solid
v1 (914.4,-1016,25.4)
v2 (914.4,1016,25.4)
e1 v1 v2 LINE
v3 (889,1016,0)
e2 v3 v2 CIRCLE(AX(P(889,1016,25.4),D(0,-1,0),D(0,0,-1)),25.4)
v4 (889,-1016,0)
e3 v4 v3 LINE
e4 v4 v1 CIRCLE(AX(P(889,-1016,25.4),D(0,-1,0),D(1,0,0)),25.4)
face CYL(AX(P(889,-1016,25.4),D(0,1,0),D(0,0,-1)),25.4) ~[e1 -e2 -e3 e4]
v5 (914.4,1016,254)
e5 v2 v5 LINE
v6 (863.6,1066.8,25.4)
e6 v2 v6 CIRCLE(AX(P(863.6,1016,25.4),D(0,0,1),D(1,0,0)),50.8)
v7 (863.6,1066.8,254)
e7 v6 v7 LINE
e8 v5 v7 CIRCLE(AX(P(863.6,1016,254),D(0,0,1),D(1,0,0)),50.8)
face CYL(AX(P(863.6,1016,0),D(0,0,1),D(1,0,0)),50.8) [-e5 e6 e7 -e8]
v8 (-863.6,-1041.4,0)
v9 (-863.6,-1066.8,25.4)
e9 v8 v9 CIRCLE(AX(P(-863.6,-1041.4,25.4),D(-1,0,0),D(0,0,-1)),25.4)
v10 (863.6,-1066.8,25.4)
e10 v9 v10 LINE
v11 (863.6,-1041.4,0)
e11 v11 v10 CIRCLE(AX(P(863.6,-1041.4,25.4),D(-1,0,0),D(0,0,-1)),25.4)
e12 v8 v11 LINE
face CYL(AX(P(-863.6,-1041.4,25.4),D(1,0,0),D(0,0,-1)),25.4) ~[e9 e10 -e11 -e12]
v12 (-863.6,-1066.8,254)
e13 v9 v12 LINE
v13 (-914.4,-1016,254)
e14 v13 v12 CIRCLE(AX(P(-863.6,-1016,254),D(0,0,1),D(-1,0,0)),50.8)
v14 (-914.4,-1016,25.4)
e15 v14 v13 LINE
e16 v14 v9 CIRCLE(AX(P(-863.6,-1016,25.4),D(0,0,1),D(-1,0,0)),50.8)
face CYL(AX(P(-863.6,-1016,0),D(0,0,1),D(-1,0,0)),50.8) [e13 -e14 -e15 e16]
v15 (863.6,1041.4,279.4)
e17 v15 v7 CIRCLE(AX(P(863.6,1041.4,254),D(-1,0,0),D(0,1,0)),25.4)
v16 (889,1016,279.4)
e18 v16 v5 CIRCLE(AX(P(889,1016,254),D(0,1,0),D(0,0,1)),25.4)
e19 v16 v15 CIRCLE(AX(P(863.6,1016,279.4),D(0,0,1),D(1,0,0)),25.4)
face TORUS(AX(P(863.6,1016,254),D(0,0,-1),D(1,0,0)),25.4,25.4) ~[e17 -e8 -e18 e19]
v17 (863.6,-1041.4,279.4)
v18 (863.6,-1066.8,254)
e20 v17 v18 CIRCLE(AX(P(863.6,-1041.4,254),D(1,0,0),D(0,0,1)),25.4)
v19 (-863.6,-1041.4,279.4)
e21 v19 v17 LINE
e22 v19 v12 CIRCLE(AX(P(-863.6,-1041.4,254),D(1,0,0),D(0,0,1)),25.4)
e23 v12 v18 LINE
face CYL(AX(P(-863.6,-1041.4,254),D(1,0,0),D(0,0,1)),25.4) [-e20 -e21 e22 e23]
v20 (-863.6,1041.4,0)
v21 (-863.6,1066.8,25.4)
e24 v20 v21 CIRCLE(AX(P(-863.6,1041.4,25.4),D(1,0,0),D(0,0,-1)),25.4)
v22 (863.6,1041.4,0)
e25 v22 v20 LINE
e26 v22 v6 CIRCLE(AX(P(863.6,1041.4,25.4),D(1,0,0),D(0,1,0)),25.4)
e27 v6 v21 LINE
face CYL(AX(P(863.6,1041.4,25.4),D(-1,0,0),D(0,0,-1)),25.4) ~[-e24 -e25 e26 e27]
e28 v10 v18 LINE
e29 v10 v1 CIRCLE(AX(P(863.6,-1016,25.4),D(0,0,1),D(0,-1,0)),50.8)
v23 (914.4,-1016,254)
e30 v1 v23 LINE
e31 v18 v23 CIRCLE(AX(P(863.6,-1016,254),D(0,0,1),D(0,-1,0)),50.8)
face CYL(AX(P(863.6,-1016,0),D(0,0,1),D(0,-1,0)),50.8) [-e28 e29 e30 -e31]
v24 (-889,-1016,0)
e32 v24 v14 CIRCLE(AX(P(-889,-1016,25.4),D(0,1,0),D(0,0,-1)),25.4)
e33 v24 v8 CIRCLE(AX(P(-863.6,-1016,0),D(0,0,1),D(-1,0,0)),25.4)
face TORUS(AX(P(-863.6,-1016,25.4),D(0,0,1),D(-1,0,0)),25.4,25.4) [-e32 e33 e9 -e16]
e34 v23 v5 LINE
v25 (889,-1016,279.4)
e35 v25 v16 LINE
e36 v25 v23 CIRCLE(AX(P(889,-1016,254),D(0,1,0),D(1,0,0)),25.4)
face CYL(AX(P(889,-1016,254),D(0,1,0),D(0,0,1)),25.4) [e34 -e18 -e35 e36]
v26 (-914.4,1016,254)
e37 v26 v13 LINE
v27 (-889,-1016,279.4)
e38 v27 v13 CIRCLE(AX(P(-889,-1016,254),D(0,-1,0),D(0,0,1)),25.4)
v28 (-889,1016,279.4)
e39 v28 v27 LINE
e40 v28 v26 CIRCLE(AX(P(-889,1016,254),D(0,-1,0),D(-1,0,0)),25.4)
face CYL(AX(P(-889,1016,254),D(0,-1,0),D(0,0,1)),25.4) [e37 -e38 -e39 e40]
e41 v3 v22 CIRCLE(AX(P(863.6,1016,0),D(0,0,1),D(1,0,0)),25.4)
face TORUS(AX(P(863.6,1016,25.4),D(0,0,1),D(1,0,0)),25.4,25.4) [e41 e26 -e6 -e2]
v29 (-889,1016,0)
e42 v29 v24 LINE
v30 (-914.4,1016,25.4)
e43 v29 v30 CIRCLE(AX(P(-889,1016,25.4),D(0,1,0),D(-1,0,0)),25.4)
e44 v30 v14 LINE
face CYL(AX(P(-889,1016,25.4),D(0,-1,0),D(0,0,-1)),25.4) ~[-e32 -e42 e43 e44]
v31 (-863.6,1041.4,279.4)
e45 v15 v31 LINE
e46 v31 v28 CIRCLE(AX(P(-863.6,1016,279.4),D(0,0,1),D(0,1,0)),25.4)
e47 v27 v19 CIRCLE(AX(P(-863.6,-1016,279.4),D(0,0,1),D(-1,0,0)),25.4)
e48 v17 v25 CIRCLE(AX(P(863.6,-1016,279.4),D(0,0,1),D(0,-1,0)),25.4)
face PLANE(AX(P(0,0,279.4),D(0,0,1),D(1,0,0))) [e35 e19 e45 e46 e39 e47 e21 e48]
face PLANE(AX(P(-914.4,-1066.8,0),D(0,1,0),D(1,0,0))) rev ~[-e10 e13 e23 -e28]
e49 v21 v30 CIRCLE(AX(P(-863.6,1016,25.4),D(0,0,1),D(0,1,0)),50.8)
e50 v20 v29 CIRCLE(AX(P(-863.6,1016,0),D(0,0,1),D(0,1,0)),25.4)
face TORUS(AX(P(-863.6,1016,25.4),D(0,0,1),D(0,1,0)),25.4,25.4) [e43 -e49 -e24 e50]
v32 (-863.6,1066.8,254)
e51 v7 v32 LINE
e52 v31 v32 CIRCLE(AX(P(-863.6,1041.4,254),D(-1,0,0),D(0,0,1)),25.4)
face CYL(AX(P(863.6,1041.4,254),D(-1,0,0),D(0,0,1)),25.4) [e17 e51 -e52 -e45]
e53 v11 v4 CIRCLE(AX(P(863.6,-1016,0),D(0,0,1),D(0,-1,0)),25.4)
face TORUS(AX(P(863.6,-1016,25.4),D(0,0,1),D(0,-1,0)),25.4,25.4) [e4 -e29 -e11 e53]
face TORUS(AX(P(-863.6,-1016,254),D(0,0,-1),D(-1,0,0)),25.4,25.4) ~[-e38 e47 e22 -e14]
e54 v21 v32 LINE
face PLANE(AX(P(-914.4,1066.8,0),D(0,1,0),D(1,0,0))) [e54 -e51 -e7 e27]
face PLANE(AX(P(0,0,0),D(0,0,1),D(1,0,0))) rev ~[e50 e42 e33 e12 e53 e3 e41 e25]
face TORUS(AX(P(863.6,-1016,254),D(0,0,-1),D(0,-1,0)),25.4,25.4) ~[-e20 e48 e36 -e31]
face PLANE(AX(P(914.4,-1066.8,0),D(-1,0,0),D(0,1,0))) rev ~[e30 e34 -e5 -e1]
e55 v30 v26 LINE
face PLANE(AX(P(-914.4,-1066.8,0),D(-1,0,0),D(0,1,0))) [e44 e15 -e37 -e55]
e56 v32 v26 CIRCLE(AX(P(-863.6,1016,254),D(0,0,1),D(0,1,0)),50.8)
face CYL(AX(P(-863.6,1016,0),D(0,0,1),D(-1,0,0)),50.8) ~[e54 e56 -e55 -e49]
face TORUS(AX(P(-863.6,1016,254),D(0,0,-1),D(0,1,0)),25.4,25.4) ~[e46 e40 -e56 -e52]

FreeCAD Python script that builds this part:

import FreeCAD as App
import Part
import Sketcher
from FreeCAD import Vector
Q = App.Units.Quantity


def edges_at(feature, points):
    """Names of the edges that pass closest to the given points."""
    edges = feature.Shape.Edges
    near = lambda p: min(range(len(edges)), key=lambda i: edges[i].distToShape(Part.Vertex(*p))[0])
    return sorted({f"Edge{near(p) + 1}" for p in points})


def add_polygon(sketch, points):
    """Adds a closed chain of lines whose ends are joined by coincident constraints."""
    first, n = sketch.GeometryCount, len(points)
    for a, b in zip(points, points[1:] + points[:1]):
        sketch.addGeometry(Part.LineSegment(App.Vector(*a, 0), App.Vector(*b, 0)), False)
    for i in range(n):
        sketch.addConstraint(Sketcher.Constraint("Coincident", first + i, 2, first + (i + 1) % n, 1))

doc = App.newDocument("Part")
params = doc.addObject("Spreadsheet::Sheet", "Params")
for row, (alias, value) in enumerate([
    ("sketch1_width", "72 in"),
    ("sketch1_height", "84 in"),
    ("pad1_length", "11 in"),
    ("fillet_radius", "2 in"),
    ("fillet2_radius", "1 in"),
], start=1):
    params.set(f"A{row}", alias)
    params.set(f"B{row}", "=" + value)
    params.setAlias(f"B{row}", alias)

body = doc.addObject("PartDesign::Body", "Body")

# Sketch on XY plane
sketch1 = doc.addObject("Sketcher::SketchObject", "Sketch")
body.addObject(sketch1)
sketch1.AttachmentSupport = (doc.XY_Plane, [""])
sketch1.MapMode = "FlatFace"
add_polygon(sketch1, [(-914, 1067), (-914, -1067), (914, -1067), (914, 1067)])  # lines 0-3
sketch1.addConstraint(Sketcher.Constraint("Vertical", 0))
sketch1.addConstraint(Sketcher.Constraint("Horizontal", 1))
sketch1.addConstraint(Sketcher.Constraint("Vertical", 2))
sketch1.addConstraint(Sketcher.Constraint("Horizontal", 3))
sketch1.addConstraint(Sketcher.Constraint("Symmetric", 0, 2, 2, 2, -1, 1))
sketch1.addConstraint(Sketcher.Constraint("DistanceX", 1, 1, 1, 2, Q("72 in")))
sketch1.addConstraint(Sketcher.Constraint("DistanceY", 0, 2, 0, 1, Q("84 in")))
sketch1.setExpression("Constraints[9]", "Params.sketch1_width")
sketch1.setExpression("Constraints[10]", "Params.sketch1_height")
pad1 = doc.addObject("PartDesign::Pad", "Pad")
body.addObject(pad1)
pad1.Profile = sketch1
pad1.setExpression("Length", "Params.pad1_length")
doc.recompute()

fillet = doc.addObject("PartDesign::Fillet", "Fillet")
body.addObject(fillet)
fillet.Base = (pad1, edges_at(pad1, [
    (-914.4, -1066.8, 139.7),
    (-914.4, 1066.8, 139.7),
    (914.4, -1066.8, 139.7),
    (914.4, 1066.8, 139.7),
]))
fillet.setExpression("Radius", "Params.fillet_radius")
doc.recompute()

fillet2 = doc.addObject("PartDesign::Fillet", "Fillet001")
body.addObject(fillet2)
fillet2.Base = (fillet, edges_at(fillet, [
    (0, -1066.8, 279.4),
    (899.521, -1051.921, 279.4),
    (914.4, 0, 279.4),
    (0, -1066.8, 0),
]))
fillet2.setExpression("Radius", "Params.fillet2_radius")

doc.recompute()
